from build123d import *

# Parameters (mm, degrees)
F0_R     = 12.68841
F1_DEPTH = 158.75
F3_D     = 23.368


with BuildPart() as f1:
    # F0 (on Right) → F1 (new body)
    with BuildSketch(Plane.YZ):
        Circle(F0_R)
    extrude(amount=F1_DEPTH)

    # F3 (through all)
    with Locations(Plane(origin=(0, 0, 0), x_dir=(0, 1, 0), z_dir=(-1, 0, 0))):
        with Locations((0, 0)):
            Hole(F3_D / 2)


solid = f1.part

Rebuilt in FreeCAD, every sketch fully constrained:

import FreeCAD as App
import Part
import Sketcher
from FreeCAD import Vector
Q = App.Units.Quantity

doc = App.newDocument("Part")
body = doc.addObject("PartDesign::Body", "Body")

sketch1 = body.newObject("Sketcher::SketchObject", "Sketch")
sketch1.AttachmentSupport = (doc.getObject("YZ_Plane"), [""])
sketch1.MapMode = "FlatFace"
sketch1.addGeometry(Part.Circle(Vector(0, 0, 0), Vector(0, 0, 1), 12.68841), False)
sketch1.addConstraint([
    Sketcher.Constraint("Coincident", 0, 3, -1, 1),
    Sketcher.Constraint("Diameter", 0, 25.37682),
])
pad1 = body.newObject("PartDesign::Pad", "Pad")
pad1.Profile = sketch1
pad1.Length = Q("6.25 in")

sketch2 = body.newObject("Sketcher::SketchObject", "Sketch001")
sketch2.AttachmentSupport = (doc.getObject("YZ_Plane"), [""])
sketch2.MapMode = "FlatFace"
sketch2.addGeometry(Part.Circle(Vector(0, 0, 0), Vector(0, 0, 1), 11.684), False)
sketch2.addConstraint([
    Sketcher.Constraint("Coincident", 0, 3, -1, 1),
    Sketcher.Constraint("Diameter", 0, Q("0.92 in")),
])
doc.recompute()
hole = body.newObject("PartDesign::Hole", "Hole")
hole.Profile = sketch2
hole.ThreadType = "None"
hole.Diameter = Q("0.92 in")
hole.DepthType = "ThroughAll"
hole.Reversed = True

doc.recompute()
